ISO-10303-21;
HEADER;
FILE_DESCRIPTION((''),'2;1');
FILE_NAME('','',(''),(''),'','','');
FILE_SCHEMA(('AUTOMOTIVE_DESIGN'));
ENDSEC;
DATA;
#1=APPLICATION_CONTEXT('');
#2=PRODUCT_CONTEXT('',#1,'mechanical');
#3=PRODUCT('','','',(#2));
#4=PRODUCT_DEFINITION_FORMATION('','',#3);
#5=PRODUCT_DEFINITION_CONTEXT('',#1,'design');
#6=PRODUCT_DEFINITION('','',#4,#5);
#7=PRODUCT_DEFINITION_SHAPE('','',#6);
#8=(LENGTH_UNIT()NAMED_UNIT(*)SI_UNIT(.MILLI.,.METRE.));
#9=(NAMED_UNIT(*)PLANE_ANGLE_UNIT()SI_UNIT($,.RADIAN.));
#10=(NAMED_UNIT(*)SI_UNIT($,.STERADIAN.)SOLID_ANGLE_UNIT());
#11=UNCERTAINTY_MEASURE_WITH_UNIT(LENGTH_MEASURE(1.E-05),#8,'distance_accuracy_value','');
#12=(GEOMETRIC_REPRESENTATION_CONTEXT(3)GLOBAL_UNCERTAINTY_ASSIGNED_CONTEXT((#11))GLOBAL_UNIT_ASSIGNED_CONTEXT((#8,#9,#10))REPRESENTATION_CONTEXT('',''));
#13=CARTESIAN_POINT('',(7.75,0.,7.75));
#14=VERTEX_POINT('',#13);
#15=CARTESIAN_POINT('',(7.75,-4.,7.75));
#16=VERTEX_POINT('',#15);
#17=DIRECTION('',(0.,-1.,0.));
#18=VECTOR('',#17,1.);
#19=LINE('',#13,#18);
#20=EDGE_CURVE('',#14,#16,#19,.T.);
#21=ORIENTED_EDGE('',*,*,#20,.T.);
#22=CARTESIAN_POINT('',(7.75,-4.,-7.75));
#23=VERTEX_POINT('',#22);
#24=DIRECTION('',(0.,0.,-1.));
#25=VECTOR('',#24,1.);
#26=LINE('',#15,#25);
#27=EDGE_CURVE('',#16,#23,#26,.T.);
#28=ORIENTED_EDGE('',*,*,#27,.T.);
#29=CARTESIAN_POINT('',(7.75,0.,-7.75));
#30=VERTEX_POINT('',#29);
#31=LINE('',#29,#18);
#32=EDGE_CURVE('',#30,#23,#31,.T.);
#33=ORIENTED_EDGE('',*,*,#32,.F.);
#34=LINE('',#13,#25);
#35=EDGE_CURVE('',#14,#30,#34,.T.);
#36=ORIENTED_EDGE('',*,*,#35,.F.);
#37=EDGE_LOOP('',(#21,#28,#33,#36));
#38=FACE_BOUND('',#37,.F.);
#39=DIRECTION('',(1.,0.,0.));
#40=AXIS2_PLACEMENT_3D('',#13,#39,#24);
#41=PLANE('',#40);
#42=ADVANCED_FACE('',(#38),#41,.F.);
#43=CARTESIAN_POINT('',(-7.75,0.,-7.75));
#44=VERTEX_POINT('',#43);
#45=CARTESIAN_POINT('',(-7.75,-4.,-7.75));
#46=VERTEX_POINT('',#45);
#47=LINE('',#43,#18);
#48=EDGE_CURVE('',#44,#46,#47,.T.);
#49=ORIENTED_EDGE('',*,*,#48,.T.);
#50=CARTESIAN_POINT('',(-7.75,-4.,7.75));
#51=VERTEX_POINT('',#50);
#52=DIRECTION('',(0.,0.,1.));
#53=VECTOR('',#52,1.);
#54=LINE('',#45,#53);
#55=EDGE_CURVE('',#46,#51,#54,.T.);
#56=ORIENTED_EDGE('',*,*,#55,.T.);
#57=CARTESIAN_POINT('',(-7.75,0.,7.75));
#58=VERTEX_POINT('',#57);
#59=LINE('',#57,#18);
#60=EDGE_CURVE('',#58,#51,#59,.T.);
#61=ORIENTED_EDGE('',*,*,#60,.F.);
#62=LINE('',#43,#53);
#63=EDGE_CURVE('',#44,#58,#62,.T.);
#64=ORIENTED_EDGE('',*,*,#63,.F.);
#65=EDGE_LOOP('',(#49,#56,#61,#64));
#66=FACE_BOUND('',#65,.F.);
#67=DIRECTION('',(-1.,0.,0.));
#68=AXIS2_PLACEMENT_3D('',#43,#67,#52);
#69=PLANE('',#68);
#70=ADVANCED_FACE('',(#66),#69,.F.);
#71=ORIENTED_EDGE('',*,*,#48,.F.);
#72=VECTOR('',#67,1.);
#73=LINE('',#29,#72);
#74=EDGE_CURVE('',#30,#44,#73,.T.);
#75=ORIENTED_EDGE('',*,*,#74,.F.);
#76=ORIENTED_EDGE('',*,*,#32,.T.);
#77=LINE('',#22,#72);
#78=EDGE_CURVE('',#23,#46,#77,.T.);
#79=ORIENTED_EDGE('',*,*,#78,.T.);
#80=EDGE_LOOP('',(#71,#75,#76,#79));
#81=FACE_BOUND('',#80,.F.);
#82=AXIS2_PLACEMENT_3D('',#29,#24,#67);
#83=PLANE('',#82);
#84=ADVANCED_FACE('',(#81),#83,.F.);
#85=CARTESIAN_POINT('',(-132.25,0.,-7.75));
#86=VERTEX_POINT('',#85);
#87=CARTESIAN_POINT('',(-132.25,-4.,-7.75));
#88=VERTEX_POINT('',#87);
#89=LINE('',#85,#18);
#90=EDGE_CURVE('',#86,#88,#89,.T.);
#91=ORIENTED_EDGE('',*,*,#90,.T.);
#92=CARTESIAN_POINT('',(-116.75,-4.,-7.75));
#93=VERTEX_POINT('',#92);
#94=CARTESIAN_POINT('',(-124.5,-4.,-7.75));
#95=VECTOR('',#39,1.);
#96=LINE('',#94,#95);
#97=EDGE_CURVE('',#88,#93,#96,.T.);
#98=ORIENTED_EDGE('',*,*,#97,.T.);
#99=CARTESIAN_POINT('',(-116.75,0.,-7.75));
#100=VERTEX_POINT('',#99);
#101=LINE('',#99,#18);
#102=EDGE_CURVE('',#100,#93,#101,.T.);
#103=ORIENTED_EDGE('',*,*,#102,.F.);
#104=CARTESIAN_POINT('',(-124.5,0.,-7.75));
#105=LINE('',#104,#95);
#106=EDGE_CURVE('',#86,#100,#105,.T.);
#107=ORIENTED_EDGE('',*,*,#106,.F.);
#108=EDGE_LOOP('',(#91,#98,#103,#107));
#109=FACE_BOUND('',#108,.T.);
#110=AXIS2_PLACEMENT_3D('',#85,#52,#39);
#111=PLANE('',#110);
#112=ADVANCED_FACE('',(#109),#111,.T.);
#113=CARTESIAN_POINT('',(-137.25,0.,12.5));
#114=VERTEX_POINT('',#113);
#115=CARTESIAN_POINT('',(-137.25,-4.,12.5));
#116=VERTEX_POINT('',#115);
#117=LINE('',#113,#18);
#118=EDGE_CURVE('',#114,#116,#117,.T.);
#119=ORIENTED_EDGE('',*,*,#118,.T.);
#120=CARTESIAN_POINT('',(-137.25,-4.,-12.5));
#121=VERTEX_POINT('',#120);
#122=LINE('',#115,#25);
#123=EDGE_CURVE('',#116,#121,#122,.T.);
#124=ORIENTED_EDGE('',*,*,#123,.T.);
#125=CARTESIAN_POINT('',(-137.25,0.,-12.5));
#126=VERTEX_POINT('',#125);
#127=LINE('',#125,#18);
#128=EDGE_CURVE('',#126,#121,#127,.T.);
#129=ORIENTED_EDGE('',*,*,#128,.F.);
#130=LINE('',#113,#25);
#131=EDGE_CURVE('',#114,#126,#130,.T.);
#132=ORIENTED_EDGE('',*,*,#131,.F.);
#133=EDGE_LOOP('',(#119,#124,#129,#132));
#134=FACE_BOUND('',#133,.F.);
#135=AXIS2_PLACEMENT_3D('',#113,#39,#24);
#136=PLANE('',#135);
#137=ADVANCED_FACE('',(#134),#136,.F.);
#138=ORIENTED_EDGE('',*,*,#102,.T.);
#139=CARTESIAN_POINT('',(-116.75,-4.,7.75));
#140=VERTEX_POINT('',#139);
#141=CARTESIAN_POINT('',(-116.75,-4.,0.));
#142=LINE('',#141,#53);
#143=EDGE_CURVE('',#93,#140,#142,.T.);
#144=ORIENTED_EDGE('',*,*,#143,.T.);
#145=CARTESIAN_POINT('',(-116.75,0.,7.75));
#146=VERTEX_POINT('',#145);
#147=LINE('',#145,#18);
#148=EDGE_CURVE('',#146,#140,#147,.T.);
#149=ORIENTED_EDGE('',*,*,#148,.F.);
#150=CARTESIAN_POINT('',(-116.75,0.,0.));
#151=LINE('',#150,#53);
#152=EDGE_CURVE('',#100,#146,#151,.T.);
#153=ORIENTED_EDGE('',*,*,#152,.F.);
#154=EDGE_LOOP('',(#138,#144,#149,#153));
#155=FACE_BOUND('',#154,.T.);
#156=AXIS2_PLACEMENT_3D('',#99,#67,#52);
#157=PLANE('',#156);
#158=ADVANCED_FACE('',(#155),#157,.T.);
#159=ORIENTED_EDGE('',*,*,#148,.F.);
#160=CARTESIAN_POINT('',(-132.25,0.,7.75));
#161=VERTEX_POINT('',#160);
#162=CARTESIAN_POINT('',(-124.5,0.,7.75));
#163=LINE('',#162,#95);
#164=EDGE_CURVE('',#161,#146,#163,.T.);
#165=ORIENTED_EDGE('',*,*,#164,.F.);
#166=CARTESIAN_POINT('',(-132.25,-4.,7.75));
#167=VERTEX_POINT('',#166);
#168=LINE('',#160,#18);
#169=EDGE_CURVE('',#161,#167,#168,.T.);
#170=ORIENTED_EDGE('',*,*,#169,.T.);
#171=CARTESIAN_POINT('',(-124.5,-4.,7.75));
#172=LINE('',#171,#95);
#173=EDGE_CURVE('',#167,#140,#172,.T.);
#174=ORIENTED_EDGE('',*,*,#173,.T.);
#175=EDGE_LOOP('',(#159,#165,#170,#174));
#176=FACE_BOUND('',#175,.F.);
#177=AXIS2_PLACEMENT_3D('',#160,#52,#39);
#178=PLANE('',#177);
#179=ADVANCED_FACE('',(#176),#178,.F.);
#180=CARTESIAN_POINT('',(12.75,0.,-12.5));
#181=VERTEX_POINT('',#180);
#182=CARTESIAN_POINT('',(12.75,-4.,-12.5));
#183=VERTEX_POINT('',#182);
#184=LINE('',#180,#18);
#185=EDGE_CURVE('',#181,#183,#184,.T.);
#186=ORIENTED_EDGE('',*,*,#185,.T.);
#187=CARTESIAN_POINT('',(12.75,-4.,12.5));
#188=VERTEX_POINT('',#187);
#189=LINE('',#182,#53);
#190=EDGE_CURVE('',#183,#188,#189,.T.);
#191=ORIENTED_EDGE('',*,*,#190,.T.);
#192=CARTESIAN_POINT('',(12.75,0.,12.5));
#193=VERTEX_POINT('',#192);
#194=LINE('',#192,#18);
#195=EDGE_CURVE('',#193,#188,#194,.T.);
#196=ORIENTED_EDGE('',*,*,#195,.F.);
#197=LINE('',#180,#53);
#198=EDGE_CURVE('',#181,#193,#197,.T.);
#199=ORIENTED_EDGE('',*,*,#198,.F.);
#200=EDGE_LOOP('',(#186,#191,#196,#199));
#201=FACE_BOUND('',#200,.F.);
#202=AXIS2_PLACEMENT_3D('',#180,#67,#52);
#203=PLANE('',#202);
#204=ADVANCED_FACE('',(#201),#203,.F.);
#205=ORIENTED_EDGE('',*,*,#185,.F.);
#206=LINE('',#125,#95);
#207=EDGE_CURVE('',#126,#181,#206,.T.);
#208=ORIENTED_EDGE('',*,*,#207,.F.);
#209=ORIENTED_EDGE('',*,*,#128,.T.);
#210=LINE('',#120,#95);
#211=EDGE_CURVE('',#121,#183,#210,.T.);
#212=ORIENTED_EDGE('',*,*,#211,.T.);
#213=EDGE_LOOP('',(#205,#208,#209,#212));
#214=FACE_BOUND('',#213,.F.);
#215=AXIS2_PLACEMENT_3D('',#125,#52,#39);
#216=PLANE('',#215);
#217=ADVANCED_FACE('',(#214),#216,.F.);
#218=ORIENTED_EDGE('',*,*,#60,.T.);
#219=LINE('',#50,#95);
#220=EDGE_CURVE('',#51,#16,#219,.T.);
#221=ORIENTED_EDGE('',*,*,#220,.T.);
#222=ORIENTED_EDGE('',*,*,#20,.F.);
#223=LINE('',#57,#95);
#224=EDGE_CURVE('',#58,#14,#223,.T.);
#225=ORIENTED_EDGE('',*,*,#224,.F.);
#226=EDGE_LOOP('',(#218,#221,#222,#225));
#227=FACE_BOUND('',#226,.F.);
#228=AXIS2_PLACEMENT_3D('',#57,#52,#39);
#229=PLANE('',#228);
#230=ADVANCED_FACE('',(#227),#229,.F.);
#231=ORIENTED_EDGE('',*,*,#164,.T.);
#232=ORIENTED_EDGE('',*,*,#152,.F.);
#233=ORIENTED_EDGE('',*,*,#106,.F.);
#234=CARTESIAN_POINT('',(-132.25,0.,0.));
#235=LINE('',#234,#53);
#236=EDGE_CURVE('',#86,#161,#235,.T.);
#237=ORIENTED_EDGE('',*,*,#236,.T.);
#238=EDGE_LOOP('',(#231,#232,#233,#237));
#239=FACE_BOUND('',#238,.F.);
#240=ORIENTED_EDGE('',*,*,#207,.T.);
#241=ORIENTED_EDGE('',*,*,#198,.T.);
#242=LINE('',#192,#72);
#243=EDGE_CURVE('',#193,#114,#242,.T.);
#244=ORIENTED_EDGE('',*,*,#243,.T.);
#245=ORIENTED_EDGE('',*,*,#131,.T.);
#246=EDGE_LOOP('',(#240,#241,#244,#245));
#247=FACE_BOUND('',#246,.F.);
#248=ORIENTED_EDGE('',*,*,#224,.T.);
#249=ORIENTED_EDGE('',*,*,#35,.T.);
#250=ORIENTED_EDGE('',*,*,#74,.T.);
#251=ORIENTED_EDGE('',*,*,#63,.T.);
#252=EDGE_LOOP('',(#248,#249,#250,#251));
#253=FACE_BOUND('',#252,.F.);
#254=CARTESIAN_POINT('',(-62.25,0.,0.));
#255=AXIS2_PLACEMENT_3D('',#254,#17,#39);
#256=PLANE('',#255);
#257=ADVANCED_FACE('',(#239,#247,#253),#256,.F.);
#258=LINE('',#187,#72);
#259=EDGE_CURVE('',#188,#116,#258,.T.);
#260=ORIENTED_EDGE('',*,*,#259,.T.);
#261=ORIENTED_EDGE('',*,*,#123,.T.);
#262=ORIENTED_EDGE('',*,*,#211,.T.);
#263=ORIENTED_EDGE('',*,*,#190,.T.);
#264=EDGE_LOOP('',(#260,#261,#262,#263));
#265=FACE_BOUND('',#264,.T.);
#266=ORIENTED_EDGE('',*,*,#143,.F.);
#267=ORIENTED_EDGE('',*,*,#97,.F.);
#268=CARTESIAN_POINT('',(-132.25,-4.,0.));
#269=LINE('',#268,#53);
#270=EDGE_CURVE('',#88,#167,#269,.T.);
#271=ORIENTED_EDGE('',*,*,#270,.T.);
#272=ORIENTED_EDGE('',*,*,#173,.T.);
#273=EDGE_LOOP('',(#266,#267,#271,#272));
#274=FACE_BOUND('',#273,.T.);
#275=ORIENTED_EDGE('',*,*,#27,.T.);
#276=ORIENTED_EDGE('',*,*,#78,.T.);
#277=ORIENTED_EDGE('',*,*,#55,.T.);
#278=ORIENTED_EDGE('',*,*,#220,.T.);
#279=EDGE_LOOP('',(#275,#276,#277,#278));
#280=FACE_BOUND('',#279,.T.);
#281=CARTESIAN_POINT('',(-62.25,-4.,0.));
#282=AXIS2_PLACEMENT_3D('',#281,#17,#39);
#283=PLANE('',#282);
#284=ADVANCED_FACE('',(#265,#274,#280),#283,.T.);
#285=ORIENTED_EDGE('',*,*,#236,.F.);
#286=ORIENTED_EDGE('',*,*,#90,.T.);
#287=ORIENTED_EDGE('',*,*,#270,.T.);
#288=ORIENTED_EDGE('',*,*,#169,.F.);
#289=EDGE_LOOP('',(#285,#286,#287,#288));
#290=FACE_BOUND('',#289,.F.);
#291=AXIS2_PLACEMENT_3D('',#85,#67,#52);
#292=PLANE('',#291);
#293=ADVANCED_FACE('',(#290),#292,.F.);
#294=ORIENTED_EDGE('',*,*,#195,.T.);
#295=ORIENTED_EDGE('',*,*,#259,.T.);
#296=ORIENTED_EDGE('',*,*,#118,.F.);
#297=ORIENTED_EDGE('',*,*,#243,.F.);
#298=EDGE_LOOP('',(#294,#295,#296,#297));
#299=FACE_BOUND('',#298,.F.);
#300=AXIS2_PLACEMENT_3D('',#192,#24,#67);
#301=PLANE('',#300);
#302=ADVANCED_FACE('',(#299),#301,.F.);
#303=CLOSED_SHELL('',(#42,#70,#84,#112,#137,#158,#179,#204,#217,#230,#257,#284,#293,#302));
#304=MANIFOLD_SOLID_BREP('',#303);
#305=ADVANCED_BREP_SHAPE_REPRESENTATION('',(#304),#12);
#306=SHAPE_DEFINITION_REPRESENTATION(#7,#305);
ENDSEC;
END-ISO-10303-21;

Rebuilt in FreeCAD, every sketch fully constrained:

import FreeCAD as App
import Part
import Sketcher
from FreeCAD import Vector


def add_polygon(sketch, points):
    """Adds a closed chain of lines whose ends are joined by coincident constraints."""
    first, n = sketch.GeometryCount, len(points)
    for a, b in zip(points, points[1:] + points[:1]):
        sketch.addGeometry(Part.LineSegment(App.Vector(*a, 0), App.Vector(*b, 0)), False)
    for i in range(n):
        sketch.addConstraint(Sketcher.Constraint("Coincident", first + i, 2, first + (i + 1) % n, 1))

doc = App.newDocument("Part")
body = doc.addObject("PartDesign::Body", "Body")

# Sketch on XZ plane
sketch1 = doc.addObject("Sketcher::SketchObject", "Sketch")
body.addObject(sketch1)
sketch1.AttachmentSupport = (doc.XZ_Plane, [""])
sketch1.MapMode = "FlatFace"
add_polygon(sketch1, [(13, -12), (13, 12), (-137, 12), (-137, -12)])  # lines 0-3
add_polygon(sketch1, [(-117, -8), (-132, -8), (-132, 8), (-117, 8)])  # lines 4-7
add_polygon(sketch1, [(-8, -8), (-8, 8), (8, 8), (8, -8)])  # lines 8-11
sketch1.addConstraint([
    Sketcher.Constraint("Vertical", 0),
    Sketcher.Constraint("Horizontal", 1),
    Sketcher.Constraint("Vertical", 2),
    Sketcher.Constraint("Horizontal", 3),
    Sketcher.Constraint("Horizontal", 4),
    Sketcher.Constraint("Vertical", 5),
    Sketcher.Constraint("Horizontal", 6),
    Sketcher.Constraint("Vertical", 7),
    Sketcher.Constraint("Vertical", 8),
    Sketcher.Constraint("Horizontal", 9),
    Sketcher.Constraint("Vertical", 10),
    Sketcher.Constraint("Horizontal", 11),
    Sketcher.Constraint("Symmetric", 8, 2, 10, 2, -1, 1),
    Sketcher.Constraint("Horizontal", 6, 2, 8, 2),
    Sketcher.Constraint("Horizontal", 7, 2, 10, 2),
    Sketcher.Constraint("Equal", 6, 9),
    Sketcher.Constraint("Equal", 11, 5),
    Sketcher.Constraint("DistanceX", 1, 2, 1, 1, 150.0),
    Sketcher.Constraint("DistanceY", 0, 1, 0, 2, 25.0),
    Sketcher.Constraint("DistanceX", 4, 2, 4, 1, 15.5),
    Sketcher.Constraint("DistanceX", 2, 2, 4, 2, 5.0),
    Sketcher.Constraint("DistanceX", 6, 2, 8, 2, 109.0),
    Sketcher.Constraint("DistanceY", -1, 1, 0, 2, 12.5),
])
pad1 = doc.addObject("PartDesign::Pad", "Pad")
body.addObject(pad1)
pad1.Profile = sketch1
pad1.Length = 4

doc.recompute()
